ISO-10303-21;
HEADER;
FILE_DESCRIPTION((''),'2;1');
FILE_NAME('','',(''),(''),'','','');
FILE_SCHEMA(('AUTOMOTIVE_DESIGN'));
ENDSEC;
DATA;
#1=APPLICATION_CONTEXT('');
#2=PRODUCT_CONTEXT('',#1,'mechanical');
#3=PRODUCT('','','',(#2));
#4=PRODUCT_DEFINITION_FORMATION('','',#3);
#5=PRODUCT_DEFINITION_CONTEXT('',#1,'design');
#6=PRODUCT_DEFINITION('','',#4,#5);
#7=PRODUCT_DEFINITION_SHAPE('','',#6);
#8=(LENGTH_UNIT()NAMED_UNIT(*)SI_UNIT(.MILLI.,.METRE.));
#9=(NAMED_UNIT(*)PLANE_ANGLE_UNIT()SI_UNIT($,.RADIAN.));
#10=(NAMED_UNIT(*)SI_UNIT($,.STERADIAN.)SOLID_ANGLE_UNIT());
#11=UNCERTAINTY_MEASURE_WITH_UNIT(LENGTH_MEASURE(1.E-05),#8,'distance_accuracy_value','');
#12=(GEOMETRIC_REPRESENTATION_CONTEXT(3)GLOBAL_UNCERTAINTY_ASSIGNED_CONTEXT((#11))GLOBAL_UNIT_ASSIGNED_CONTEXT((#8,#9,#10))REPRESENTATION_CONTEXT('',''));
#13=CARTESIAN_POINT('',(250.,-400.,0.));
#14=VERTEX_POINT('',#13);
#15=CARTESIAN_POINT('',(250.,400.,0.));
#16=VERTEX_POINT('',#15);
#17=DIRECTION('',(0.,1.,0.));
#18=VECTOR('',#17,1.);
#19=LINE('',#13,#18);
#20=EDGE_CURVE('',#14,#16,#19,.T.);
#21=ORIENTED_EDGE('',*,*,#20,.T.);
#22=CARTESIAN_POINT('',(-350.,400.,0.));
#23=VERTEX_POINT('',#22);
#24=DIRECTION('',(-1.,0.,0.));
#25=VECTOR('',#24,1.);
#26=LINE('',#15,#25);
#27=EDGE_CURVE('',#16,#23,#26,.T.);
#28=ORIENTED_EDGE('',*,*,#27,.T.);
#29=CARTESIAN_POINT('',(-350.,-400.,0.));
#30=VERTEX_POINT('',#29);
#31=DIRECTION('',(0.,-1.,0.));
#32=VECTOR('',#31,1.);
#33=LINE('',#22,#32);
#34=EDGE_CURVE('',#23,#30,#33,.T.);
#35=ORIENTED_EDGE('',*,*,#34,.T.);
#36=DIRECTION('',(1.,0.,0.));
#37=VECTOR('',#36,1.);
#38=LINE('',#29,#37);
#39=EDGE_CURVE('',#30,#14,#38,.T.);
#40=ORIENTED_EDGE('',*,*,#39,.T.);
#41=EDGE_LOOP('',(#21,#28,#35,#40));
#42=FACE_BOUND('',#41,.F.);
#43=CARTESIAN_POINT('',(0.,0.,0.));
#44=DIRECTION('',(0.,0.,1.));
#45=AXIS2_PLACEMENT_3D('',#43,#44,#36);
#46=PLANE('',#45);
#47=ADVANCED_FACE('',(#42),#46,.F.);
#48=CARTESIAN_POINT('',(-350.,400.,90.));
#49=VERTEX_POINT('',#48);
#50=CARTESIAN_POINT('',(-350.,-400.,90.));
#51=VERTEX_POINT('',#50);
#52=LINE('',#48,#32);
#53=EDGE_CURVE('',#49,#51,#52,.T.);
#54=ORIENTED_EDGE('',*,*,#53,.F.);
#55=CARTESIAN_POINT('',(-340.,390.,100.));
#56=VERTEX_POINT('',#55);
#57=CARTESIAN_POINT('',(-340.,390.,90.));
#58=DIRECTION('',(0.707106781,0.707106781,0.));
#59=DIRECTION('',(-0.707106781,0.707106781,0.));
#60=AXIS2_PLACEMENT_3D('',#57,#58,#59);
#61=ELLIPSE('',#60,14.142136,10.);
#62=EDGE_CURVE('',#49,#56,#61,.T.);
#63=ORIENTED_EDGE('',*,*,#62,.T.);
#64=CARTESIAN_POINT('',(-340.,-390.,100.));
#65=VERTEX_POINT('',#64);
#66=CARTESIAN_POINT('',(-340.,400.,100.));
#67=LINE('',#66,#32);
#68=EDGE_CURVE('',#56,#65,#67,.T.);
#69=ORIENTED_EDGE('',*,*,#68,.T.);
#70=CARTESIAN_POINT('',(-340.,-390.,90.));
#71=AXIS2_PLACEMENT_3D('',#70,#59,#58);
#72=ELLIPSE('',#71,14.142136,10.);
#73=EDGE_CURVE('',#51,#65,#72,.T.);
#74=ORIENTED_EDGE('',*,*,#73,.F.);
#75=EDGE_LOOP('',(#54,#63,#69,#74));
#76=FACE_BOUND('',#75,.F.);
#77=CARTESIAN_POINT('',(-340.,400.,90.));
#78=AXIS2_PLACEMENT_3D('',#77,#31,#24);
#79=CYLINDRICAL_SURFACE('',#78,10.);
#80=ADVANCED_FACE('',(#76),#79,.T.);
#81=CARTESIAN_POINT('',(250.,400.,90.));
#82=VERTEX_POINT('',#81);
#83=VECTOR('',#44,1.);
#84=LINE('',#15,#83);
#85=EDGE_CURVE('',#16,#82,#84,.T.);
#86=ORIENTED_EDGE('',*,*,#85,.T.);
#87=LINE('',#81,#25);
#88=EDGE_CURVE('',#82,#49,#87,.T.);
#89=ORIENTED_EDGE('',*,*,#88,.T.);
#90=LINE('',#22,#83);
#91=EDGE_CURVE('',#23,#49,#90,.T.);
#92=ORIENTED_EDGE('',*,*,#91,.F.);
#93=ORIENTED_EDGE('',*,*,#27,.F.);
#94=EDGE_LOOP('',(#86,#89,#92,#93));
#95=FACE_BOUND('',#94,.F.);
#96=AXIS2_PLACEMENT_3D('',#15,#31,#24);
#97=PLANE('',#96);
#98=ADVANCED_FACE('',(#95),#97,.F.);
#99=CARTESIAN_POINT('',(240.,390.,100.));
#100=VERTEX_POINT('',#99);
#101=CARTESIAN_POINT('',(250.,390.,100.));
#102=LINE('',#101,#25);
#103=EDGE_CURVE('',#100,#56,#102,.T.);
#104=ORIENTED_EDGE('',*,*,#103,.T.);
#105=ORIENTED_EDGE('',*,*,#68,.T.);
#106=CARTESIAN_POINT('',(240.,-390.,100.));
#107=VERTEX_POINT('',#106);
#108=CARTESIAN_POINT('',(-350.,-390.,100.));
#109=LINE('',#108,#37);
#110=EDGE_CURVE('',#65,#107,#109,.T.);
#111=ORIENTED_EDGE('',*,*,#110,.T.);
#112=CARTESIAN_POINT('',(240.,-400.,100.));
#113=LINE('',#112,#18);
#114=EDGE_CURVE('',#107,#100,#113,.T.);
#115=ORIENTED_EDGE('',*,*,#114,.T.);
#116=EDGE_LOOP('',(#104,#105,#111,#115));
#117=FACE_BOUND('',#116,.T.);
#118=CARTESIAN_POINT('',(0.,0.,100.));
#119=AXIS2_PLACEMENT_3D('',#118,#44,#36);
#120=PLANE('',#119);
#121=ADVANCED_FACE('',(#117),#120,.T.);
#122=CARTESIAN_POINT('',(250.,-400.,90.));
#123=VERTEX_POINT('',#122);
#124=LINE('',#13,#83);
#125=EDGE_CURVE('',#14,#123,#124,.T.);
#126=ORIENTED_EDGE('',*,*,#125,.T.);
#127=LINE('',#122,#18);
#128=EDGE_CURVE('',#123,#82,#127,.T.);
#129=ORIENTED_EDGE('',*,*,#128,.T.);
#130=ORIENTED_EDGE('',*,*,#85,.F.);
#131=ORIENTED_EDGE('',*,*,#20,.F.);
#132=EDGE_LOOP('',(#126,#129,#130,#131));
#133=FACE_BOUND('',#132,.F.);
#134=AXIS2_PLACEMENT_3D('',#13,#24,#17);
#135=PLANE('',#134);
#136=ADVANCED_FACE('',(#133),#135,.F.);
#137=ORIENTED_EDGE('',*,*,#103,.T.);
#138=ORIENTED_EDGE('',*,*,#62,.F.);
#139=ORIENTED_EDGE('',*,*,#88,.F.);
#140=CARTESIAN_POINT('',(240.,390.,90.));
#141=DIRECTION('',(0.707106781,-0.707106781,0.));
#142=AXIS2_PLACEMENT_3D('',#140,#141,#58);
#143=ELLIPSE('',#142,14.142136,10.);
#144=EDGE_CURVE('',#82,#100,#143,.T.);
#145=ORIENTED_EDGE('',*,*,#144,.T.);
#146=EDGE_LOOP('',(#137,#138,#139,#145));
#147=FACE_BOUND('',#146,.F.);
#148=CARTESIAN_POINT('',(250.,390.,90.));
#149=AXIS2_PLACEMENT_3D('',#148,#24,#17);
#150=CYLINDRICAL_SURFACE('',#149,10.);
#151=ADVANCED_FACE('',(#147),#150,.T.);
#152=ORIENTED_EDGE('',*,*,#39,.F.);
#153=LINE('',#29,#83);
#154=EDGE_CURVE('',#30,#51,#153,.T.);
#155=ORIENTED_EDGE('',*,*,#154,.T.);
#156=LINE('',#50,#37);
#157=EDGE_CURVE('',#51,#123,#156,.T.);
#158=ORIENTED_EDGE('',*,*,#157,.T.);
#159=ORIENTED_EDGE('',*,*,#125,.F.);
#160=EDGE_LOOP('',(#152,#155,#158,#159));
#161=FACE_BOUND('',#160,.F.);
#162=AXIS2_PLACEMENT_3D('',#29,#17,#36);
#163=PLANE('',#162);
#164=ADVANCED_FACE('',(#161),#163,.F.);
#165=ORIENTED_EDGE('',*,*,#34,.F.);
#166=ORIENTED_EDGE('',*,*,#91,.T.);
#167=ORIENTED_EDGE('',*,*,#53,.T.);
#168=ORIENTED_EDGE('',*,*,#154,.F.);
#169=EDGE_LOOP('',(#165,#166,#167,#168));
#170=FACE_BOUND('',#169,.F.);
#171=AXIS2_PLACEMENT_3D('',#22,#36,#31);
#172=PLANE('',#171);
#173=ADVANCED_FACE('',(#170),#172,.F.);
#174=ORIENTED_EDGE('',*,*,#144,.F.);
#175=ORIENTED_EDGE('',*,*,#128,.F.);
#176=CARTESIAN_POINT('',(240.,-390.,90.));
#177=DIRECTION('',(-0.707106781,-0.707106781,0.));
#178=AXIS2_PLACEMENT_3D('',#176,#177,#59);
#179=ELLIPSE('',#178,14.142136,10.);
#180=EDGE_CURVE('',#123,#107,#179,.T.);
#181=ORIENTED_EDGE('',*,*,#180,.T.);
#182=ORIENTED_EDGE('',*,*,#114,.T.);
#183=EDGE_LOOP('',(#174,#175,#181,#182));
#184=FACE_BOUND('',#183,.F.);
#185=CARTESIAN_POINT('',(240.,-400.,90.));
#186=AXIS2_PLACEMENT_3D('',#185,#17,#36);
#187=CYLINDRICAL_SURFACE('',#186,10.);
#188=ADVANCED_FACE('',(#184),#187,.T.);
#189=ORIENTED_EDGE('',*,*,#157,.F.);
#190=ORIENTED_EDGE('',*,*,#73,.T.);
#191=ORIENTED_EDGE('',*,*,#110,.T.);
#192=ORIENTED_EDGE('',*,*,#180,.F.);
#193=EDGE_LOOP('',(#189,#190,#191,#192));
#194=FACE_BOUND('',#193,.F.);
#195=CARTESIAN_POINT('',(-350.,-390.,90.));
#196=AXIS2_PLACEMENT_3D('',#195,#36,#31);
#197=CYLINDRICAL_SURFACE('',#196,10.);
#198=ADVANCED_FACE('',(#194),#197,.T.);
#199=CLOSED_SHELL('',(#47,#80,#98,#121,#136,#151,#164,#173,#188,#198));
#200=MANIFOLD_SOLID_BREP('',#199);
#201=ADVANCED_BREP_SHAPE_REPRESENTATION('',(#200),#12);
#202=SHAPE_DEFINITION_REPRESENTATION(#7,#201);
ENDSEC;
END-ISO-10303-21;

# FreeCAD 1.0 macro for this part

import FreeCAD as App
import Part
import Sketcher
Q = App.Units.Quantity


def edges_at(feature, points):
    """Names of the edges that pass closest to the given points."""
    edges = feature.Shape.Edges
    near = lambda p: min(range(len(edges)), key=lambda i: edges[i].distToShape(Part.Vertex(*p))[0])
    return sorted({f"Edge{near(p) + 1}" for p in points})


def add_polygon(sketch, points):
    """Adds a closed chain of lines whose ends are joined by coincident constraints."""
    first, n = sketch.GeometryCount, len(points)
    for a, b in zip(points, points[1:] + points[:1]):
        sketch.addGeometry(Part.LineSegment(App.Vector(*a, 0), App.Vector(*b, 0)), False)
    for i in range(n):
        sketch.addConstraint(Sketcher.Constraint("Coincident", first + i, 2, first + (i + 1) % n, 1))

doc = App.newDocument("Part")
body = doc.addObject("PartDesign::Body", "Body")

# Sketch on XY plane
sketch1 = doc.addObject("Sketcher::SketchObject", "Sketch")
body.addObject(sketch1)
sketch1.AttachmentSupport = (doc.XY_Plane, [""])
sketch1.MapMode = "FlatFace"
add_polygon(sketch1, [(250, -400), (250, 400), (-350, 400), (-350, -400)])  # lines 0-3
sketch1.addConstraint([
    Sketcher.Constraint("Vertical", 0),
    Sketcher.Constraint("Horizontal", 1),
    Sketcher.Constraint("Vertical", 2),
    Sketcher.Constraint("Horizontal", 3),
    Sketcher.Constraint("DistanceX", 1, 2, 1, 1, Q("600 mm")),
    Sketcher.Constraint("DistanceY", 0, 1, 0, 2, Q("800 mm")),
    Sketcher.Constraint("DistanceX", -1, 1, 0, 2, Q("250 mm")),
    Sketcher.Constraint("DistanceY", -1, 1, 0, 2, Q("400 mm")),
])
pad1 = doc.addObject("PartDesign::Pad", "Pad")
body.addObject(pad1)
pad1.Profile = sketch1
pad1.Length = 100
doc.recompute()

fillet = doc.addObject("PartDesign::Fillet", "Fillet")
body.addObject(fillet)
fillet.Base = (pad1, edges_at(pad1, [
    (250, 0, 100),
    (-50, 400, 100),
    (-50, -400, 100),
    (-350, 0, 100),
]))
fillet.Radius = 10

doc.recompute()
